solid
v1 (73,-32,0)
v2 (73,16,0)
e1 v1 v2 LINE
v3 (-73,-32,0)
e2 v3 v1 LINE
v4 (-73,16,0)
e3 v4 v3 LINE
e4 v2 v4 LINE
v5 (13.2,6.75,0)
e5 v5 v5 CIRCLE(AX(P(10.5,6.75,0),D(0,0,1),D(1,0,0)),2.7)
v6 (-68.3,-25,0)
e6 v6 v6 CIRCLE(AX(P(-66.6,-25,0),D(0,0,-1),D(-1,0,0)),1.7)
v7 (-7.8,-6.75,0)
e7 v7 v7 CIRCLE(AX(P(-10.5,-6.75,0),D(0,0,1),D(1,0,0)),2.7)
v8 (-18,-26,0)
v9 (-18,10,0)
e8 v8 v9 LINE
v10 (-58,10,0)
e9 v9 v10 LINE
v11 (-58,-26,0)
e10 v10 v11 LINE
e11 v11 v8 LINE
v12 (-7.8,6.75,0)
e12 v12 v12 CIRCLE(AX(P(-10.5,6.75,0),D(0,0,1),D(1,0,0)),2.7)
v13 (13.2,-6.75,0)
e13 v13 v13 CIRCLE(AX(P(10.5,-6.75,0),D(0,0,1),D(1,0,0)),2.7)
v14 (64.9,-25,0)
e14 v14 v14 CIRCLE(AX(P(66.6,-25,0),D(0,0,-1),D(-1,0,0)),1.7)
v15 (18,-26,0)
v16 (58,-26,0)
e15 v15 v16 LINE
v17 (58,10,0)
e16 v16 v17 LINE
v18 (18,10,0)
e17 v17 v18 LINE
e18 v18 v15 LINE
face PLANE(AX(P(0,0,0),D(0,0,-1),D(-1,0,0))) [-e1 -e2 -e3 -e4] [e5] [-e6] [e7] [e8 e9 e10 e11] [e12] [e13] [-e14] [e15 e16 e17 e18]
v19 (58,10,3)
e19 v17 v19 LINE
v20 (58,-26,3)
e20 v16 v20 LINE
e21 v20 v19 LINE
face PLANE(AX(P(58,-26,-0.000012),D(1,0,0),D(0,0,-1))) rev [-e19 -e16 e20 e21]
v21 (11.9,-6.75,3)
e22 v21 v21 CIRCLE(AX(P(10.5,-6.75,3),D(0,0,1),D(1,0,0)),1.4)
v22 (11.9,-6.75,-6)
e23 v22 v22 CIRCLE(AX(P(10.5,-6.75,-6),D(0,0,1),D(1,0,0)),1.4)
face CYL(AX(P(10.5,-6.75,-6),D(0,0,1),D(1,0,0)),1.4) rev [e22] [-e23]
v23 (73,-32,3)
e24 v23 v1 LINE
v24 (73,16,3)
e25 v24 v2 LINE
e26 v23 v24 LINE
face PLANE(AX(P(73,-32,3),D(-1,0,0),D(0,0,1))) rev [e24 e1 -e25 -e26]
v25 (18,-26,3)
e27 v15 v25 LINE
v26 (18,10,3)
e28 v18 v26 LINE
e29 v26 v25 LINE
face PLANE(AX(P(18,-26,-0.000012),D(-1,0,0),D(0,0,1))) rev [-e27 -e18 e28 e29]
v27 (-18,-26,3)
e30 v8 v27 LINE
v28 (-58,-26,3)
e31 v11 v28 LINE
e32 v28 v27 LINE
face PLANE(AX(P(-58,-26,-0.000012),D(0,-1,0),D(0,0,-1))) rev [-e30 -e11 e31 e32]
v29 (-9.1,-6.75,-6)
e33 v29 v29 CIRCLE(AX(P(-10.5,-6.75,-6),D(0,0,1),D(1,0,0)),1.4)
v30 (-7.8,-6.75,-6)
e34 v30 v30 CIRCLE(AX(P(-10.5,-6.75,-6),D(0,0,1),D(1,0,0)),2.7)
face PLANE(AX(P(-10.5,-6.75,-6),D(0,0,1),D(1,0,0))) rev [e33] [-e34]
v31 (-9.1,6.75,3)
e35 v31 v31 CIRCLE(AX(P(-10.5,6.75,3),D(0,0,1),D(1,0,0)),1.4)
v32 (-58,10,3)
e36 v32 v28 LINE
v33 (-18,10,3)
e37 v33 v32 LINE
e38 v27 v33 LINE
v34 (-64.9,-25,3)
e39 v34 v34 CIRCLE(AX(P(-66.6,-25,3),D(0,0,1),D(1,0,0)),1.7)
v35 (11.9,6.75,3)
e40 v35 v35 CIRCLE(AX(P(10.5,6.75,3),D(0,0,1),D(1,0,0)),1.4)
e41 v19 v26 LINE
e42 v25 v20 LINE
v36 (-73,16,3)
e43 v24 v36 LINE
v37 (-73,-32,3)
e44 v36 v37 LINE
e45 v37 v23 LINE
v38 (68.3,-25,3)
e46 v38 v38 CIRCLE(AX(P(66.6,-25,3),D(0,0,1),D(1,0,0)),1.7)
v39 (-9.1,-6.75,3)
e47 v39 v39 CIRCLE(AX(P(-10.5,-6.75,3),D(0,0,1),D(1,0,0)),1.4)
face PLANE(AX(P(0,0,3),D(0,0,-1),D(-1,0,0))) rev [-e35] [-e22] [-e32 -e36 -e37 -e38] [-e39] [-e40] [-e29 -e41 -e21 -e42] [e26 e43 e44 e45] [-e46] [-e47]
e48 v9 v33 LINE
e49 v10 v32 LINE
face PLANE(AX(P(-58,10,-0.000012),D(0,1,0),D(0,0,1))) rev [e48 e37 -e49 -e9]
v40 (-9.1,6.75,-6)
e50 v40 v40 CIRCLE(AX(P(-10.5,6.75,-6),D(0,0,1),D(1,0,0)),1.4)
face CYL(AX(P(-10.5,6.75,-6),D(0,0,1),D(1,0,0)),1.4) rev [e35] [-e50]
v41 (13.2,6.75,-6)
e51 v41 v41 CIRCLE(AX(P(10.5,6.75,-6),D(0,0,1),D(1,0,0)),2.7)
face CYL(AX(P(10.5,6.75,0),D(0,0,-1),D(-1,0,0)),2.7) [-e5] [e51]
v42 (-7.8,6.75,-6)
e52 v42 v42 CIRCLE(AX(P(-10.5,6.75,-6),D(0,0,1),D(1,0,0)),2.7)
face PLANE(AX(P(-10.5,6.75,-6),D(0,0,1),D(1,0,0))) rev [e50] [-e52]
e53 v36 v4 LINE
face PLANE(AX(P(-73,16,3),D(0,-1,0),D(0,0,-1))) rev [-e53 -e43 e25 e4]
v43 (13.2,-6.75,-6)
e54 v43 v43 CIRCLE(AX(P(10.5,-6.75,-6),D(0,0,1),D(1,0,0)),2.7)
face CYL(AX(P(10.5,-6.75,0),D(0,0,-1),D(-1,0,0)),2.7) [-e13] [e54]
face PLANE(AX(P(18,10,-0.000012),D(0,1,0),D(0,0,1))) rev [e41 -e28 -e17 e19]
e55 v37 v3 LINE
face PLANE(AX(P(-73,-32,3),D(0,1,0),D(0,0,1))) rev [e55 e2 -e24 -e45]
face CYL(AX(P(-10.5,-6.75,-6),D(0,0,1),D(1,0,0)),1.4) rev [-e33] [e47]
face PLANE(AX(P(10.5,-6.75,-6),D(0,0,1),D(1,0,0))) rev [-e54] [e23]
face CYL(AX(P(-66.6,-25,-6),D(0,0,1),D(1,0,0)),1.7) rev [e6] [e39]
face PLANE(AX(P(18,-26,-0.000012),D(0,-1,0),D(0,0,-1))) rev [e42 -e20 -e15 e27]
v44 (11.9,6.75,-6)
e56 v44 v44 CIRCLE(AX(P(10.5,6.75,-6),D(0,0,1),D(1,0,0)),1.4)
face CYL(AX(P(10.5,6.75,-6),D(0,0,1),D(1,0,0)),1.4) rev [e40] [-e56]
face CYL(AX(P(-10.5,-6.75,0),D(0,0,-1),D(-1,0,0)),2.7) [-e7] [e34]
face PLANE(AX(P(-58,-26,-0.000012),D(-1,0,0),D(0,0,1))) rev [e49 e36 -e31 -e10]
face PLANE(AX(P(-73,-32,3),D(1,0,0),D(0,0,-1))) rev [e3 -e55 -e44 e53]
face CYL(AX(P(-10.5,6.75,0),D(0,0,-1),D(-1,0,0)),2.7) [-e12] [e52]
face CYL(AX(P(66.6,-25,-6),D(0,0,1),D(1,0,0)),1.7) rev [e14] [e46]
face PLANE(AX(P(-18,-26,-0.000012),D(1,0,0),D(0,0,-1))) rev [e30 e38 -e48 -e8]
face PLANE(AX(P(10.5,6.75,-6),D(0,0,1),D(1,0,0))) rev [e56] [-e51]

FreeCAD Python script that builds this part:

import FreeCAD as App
import Part
import Sketcher

V = App.Vector

doc = App.newDocument("Part")
body = doc.addObject("PartDesign::Body", "Body")

# Sketch on XY plane
sketch1 = body.newObject("Sketcher::SketchObject", "Sketch")
sketch1.AttachmentSupport = (doc.getObject("XY_Plane"), [""])
sketch1.MapMode = "FlatFace"
sketch1.addGeometry(Part.LineSegment(V(-73, 16, 0), V(-73, -32, 0)), False)
sketch1.addGeometry(Part.LineSegment(V(-73, -32, 0), V(73, -32, 0)), False)
sketch1.addGeometry(Part.LineSegment(V(73, -32, 0), V(73, 16, 0)), False)
sketch1.addGeometry(Part.LineSegment(V(73, 16, 0), V(-73, 16, 0)), False)
sketch1.addConstraint(Sketcher.Constraint("Coincident", 0, 2, 1, 1))
sketch1.addConstraint(Sketcher.Constraint("Coincident", 1, 2, 2, 1))
sketch1.addConstraint(Sketcher.Constraint("Coincident", 2, 2, 3, 1))
sketch1.addConstraint(Sketcher.Constraint("Coincident", 3, 2, 0, 1))
sketch1.addConstraint(Sketcher.Constraint("Vertical", 0))
sketch1.addConstraint(Sketcher.Constraint("Horizontal", 1))
sketch1.addConstraint(Sketcher.Constraint("Vertical", 2))
sketch1.addConstraint(Sketcher.Constraint("Horizontal", 3))
sketch1.addConstraint(Sketcher.Constraint("DistanceX", 1, 1, 1, 2, 146.0))
sketch1.addConstraint(Sketcher.Constraint("DistanceY", 0, 2, 0, 1, 48.0))
sketch1.addConstraint(Sketcher.Constraint("DistanceX", 0, 2, -1, 1, 73.0))
sketch1.addConstraint(Sketcher.Constraint("DistanceY", 0, 2, -1, 1, 32.0))
pad1 = body.newObject("PartDesign::Pad", "Pad")
pad1.Profile = sketch1
pad1.Length = 3

# Sketch on XY plane
sketch2 = body.newObject("Sketcher::SketchObject", "Sketch001")
sketch2.AttachmentSupport = (doc.getObject("XY_Plane"), [""])
sketch2.MapMode = "FlatFace"
sketch2.addGeometry(Part.LineSegment(V(-58, 10, 0), V(-58, -26, 0)), False)
sketch2.addGeometry(Part.LineSegment(V(-58, -26, 0), V(-18, -26, 0)), False)
sketch2.addGeometry(Part.LineSegment(V(-18, -26, 0), V(-18, 10, 0)), False)
sketch2.addGeometry(Part.LineSegment(V(-18, 10, 0), V(-58, 10, 0)), False)
sketch2.addGeometry(Part.LineSegment(V(18, 10, 0), V(18, -26, 0)), False)
sketch2.addGeometry(Part.LineSegment(V(18, -26, 0), V(58, -26, 0)), False)
sketch2.addGeometry(Part.LineSegment(V(58, -26, 0), V(58, 10, 0)), False)
sketch2.addGeometry(Part.LineSegment(V(58, 10, 0), V(18, 10, 0)), False)
sketch2.addConstraint(Sketcher.Constraint("Coincident", 0, 2, 1, 1))
sketch2.addConstraint(Sketcher.Constraint("Coincident", 1, 2, 2, 1))
sketch2.addConstraint(Sketcher.Constraint("Coincident", 2, 2, 3, 1))
sketch2.addConstraint(Sketcher.Constraint("Coincident", 3, 2, 0, 1))
sketch2.addConstraint(Sketcher.Constraint("Coincident", 4, 2, 5, 1))
sketch2.addConstraint(Sketcher.Constraint("Coincident", 5, 2, 6, 1))
sketch2.addConstraint(Sketcher.Constraint("Coincident", 6, 2, 7, 1))
sketch2.addConstraint(Sketcher.Constraint("Coincident", 7, 2, 4, 1))
sketch2.addConstraint(Sketcher.Constraint("Vertical", 0))
sketch2.addConstraint(Sketcher.Constraint("Horizontal", 1))
sketch2.addConstraint(Sketcher.Constraint("Vertical", 2))
sketch2.addConstraint(Sketcher.Constraint("Horizontal", 3))
sketch2.addConstraint(Sketcher.Constraint("Vertical", 4))
sketch2.addConstraint(Sketcher.Constraint("Horizontal", 5))
sketch2.addConstraint(Sketcher.Constraint("Vertical", 6))
sketch2.addConstraint(Sketcher.Constraint("Horizontal", 7))
sketch2.addConstraint(Sketcher.Constraint("Symmetric", 1, 2, 4, 2, -2))
sketch2.addConstraint(Sketcher.Constraint("Symmetric", 3, 2, 6, 2, -2))
sketch2.addConstraint(Sketcher.Constraint("DistanceX", 1, 1, 1, 2, 40.0))
sketch2.addConstraint(Sketcher.Constraint("DistanceY", 0, 2, 0, 1, 36.0))
sketch2.addConstraint(Sketcher.Constraint("DistanceX", 0, 2, -1, 1, 58.0))
sketch2.addConstraint(Sketcher.Constraint("DistanceY", 0, 2, -1, 1, 26.0))
pocket1 = body.newObject("PartDesign::Pocket", "Pocket")
pocket1.Profile = sketch2
pocket1.Type = "ThroughAll"
pocket1.Midplane = True

# Sketch on XY plane
sketch3 = body.newObject("Sketcher::SketchObject", "Sketch002")
sketch3.AttachmentSupport = (doc.getObject("XY_Plane"), [""])
sketch3.MapMode = "FlatFace"
sketch3.AttachmentOffset = App.Placement(V(0, 0, -6), App.Rotation())
sketch3.addGeometry(Part.Circle(V(-10.5, -6.8, 0), V(0, 0, 1), 2.7), False)
sketch3.addGeometry(Part.Circle(V(-10.5, 6.8, 0), V(0, 0, 1), 2.7), False)
sketch3.addGeometry(Part.Circle(V(10.5, -6.8, 0), V(0, 0, 1), 2.7), False)
sketch3.addGeometry(Part.Circle(V(10.5, 6.8, 0), V(0, 0, 1), 2.7), False)
sketch3.addConstraint(Sketcher.Constraint("Equal", 0, 1))
sketch3.addConstraint(Sketcher.Constraint("Equal", 1, 2))
sketch3.addConstraint(Sketcher.Constraint("Equal", 2, 3))
sketch3.addConstraint(Sketcher.Constraint("Symmetric", 1, 3, 2, 3, -1, 1))
sketch3.addConstraint(Sketcher.Constraint("Symmetric", 0, 3, 3, 3, -1, 1))
sketch3.addConstraint(Sketcher.Constraint("Symmetric", 0, 3, 2, 3, -2))
sketch3.addConstraint(Sketcher.Constraint("Diameter", 0, 5.4))
sketch3.addConstraint(Sketcher.Constraint("DistanceX", 0, 3, 2, 3, 21.0))
sketch3.addConstraint(Sketcher.Constraint("DistanceY", 0, 3, 1, 3, 13.5))
pad2 = body.newObject("PartDesign::Pad", "Pad001")
pad2.Profile = sketch3
pad2.Length = 6

# Sketch on XY plane
sketch4 = body.newObject("Sketcher::SketchObject", "Sketch003")
sketch4.AttachmentSupport = (doc.getObject("XY_Plane"), [""])
sketch4.MapMode = "FlatFace"
sketch4.addGeometry(Part.Circle(V(-10.5, -6.8, 0), V(0, 0, 1), 1.4), False)
sketch4.addGeometry(Part.Circle(V(-10.5, 6.8, 0), V(0, 0, 1), 1.4), False)
sketch4.addGeometry(Part.Circle(V(10.5, -6.8, 0), V(0, 0, 1), 1.4), False)
sketch4.addGeometry(Part.Circle(V(10.5, 6.8, 0), V(0, 0, 1), 1.4), False)
sketch4.addGeometry(Part.Circle(V(-66.6, -25, 0), V(0, 0, 1), 1.7), False)
sketch4.addGeometry(Part.Circle(V(66.6, -25, 0), V(0, 0, 1), 1.7), False)
sketch4.addConstraint(Sketcher.Constraint("Equal", 0, 1))
sketch4.addConstraint(Sketcher.Constraint("Equal", 1, 2))
sketch4.addConstraint(Sketcher.Constraint("Equal", 2, 3))
sketch4.addConstraint(Sketcher.Constraint("Equal", 4, 5))
sketch4.addConstraint(Sketcher.Constraint("Symmetric", 1, 3, 2, 3, -1, 1))
sketch4.addConstraint(Sketcher.Constraint("Symmetric", 0, 3, 3, 3, -1, 1))
sketch4.addConstraint(Sketcher.Constraint("Symmetric", 0, 3, 2, 3, -2))
sketch4.addConstraint(Sketcher.Constraint("Symmetric", 4, 3, 5, 3, -2))
sketch4.addConstraint(Sketcher.Constraint("Diameter", 0, 2.8))
sketch4.addConstraint(Sketcher.Constraint("Diameter", 4, 3.4))
sketch4.addConstraint(Sketcher.Constraint("DistanceY", 4, 3, -1, 1, 25.0))
sketch4.addConstraint(Sketcher.Constraint("DistanceX", 0, 3, 2, 3, 21.0))
sketch4.addConstraint(Sketcher.Constraint("DistanceX", 4, 3, -1, 1, 66.6))
sketch4.addConstraint(Sketcher.Constraint("DistanceY", 0, 3, 1, 3, 13.5))
pocket2 = body.newObject("PartDesign::Pocket", "Pocket001")
pocket2.Profile = sketch4
pocket2.Type = "ThroughAll"
pocket2.Midplane = True

doc.recompute()
